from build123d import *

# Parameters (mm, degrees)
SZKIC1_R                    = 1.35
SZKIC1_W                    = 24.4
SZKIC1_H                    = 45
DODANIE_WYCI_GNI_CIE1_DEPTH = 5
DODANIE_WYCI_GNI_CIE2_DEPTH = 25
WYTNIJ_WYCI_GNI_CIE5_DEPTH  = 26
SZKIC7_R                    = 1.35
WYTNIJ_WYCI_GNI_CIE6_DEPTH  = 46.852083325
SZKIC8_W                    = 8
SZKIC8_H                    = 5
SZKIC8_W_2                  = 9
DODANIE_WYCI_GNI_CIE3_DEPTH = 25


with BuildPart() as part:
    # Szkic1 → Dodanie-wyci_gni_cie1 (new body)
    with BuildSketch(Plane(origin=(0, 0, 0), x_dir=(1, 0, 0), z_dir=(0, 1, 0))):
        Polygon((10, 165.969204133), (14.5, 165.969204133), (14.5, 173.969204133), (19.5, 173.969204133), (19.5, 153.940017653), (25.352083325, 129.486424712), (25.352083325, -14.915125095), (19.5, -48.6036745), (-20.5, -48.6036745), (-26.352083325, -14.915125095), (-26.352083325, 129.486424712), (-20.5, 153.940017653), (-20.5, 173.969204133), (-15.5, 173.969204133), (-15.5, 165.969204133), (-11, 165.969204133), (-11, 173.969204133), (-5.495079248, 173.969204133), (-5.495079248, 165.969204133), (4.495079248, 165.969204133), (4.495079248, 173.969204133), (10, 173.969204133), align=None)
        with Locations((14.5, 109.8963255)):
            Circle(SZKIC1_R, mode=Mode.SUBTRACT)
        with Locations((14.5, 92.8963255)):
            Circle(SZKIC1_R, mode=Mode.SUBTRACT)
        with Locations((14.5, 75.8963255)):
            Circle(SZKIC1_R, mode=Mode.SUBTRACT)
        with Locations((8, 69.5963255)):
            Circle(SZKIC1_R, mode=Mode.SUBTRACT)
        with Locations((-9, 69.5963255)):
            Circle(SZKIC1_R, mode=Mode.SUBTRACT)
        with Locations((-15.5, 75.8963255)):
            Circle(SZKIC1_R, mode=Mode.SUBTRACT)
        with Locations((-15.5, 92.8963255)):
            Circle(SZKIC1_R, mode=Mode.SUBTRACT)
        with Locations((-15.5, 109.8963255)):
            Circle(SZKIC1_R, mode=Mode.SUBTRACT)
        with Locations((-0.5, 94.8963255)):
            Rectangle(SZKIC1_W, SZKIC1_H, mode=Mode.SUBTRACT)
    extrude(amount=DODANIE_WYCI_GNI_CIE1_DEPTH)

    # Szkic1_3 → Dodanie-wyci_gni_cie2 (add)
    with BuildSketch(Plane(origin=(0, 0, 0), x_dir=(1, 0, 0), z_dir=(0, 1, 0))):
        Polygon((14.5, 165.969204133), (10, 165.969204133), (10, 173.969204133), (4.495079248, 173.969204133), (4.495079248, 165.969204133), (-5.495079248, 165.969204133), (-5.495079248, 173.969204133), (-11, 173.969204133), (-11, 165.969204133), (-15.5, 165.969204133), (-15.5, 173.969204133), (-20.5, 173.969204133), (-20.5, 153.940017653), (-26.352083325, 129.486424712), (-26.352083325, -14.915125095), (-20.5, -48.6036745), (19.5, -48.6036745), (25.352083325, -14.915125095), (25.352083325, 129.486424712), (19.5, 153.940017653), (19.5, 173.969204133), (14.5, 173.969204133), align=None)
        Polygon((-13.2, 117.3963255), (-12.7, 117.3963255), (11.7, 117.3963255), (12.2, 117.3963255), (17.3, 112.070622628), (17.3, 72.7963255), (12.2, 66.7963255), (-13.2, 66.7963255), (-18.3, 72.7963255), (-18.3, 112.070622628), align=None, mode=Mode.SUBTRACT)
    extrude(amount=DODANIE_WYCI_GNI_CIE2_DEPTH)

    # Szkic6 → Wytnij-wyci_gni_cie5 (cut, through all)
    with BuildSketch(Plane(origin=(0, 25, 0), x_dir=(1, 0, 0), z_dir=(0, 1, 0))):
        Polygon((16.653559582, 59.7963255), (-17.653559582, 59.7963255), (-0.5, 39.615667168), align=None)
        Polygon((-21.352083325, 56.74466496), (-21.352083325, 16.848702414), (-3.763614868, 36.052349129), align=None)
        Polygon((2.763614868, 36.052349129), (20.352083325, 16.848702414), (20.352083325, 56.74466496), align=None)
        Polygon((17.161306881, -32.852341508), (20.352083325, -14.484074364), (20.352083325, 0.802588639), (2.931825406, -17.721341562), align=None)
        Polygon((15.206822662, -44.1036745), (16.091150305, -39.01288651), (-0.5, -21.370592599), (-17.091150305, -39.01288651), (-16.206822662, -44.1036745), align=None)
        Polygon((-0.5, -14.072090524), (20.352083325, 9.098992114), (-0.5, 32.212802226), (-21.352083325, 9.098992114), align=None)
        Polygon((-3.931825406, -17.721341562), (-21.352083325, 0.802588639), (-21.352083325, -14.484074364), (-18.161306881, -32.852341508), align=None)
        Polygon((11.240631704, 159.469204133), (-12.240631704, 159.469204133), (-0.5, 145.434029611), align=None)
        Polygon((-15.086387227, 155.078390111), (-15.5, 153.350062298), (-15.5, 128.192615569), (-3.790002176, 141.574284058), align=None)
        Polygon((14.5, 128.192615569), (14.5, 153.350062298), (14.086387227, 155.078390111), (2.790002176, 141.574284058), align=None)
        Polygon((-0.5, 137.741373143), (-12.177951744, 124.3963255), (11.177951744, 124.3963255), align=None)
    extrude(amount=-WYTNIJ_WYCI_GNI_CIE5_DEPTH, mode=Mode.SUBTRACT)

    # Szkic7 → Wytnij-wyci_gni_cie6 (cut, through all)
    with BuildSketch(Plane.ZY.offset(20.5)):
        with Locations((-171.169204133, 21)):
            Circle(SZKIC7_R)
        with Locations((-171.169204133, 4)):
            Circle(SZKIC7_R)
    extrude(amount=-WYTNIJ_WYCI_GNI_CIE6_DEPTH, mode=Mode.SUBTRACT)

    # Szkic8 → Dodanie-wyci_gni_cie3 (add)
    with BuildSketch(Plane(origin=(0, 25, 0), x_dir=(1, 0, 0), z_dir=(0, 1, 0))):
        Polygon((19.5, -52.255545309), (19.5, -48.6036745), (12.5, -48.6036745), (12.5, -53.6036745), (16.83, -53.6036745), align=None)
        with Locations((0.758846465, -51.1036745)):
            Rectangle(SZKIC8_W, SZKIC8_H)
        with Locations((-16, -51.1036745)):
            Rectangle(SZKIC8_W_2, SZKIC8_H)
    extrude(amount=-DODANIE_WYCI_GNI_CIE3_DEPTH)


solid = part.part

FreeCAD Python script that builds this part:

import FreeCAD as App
import Part
import Sketcher
Q = App.Units.Quantity

doc = App.newDocument("Part")
body = doc.addObject("PartDesign::Body", "Body")

sketch1 = doc.addObject("Sketcher::SketchObject", "Sketch")
body.addObject(sketch1)
sketch1.AttachmentSupport = (doc.XZ_Plane, [""])
sketch1.MapMode = "FlatFace"
sketch1.addGeometry([
    Part.LineSegment(App.Vector(14.5, -166, 0), App.Vector(10, -166, 0)),
    Part.LineSegment(App.Vector(10, -166, 0), App.Vector(10, -174, 0)),
    Part.LineSegment(App.Vector(10, -174, 0), App.Vector(4.5, -174, 0)),
    Part.LineSegment(App.Vector(4.5, -174, 0), App.Vector(4.5, -166, 0)),
    Part.LineSegment(App.Vector(4.5, -166, 0), App.Vector(-5.5, -166, 0)),
    Part.LineSegment(App.Vector(-5.5, -166, 0), App.Vector(-5.5, -174, 0)),
    Part.LineSegment(App.Vector(-5.5, -174, 0), App.Vector(-11, -174, 0)),
    Part.LineSegment(App.Vector(-11, -174, 0), App.Vector(-11, -166, 0)),
    Part.LineSegment(App.Vector(-11, -166, 0), App.Vector(-15.5, -166, 0)),
    Part.LineSegment(App.Vector(-15.5, -166, 0), App.Vector(-15.5, -174, 0)),
    Part.LineSegment(App.Vector(-15.5, -174, 0), App.Vector(-20.5, -174, 0)),
    Part.LineSegment(App.Vector(-20.5, -174, 0), App.Vector(-20.5, -153.9, 0)),
    Part.LineSegment(App.Vector(-20.5, -153.9, 0), App.Vector(-26.4, -129.5, 0)),
    Part.LineSegment(App.Vector(-26.4, -129.5, 0), App.Vector(-26.4, 14.9, 0)),
    Part.LineSegment(App.Vector(-26.4, 14.9, 0), App.Vector(-20.5, 48.6, 0)),
    Part.LineSegment(App.Vector(-20.5, 48.6, 0), App.Vector(19.5, 48.6, 0)),
    Part.LineSegment(App.Vector(19.5, 48.6, 0), App.Vector(25.4, 14.9, 0)),
    Part.LineSegment(App.Vector(25.4, 14.9, 0), App.Vector(25.4, -129.5, 0)),
    Part.LineSegment(App.Vector(25.4, -129.5, 0), App.Vector(19.5, -153.9, 0)),
    Part.LineSegment(App.Vector(19.5, -153.9, 0), App.Vector(19.5, -174, 0)),
    Part.LineSegment(App.Vector(19.5, -174, 0), App.Vector(14.5, -174, 0)),
    Part.LineSegment(App.Vector(14.5, -174, 0), App.Vector(14.5, -166, 0)),
    Part.Circle(App.Vector(8, -69.6, 0), App.Vector(0, 0, 1), 1.4),
    Part.Circle(App.Vector(14.5, -75.9, 0), App.Vector(0, 0, 1), 1.4),
    Part.Circle(App.Vector(-9, -69.6, 0), App.Vector(0, 0, 1), 1.4),
    Part.Circle(App.Vector(-15.5, -75.9, 0), App.Vector(0, 0, 1), 1.4),
    Part.Circle(App.Vector(14.5, -92.9, 0), App.Vector(0, 0, 1), 1.4),
    Part.Circle(App.Vector(14.5, -109.9, 0), App.Vector(0, 0, 1), 1.4),
    Part.LineSegment(App.Vector(-12.7, -72.4, 0), App.Vector(-12.7, -117.4, 0)),
    Part.LineSegment(App.Vector(-12.7, -117.4, 0), App.Vector(11.7, -117.4, 0)),
    Part.LineSegment(App.Vector(11.7, -117.4, 0), App.Vector(11.7, -72.4, 0)),
    Part.LineSegment(App.Vector(11.7, -72.4, 0), App.Vector(-12.7, -72.4, 0)),
    Part.Circle(App.Vector(-15.5, -92.9, 0), App.Vector(0, 0, 1), 1.4),
    Part.Circle(App.Vector(-15.5, -109.9, 0), App.Vector(0, 0, 1), 1.4),
], False)
sketch1.addConstraint([
    Sketcher.Constraint("Coincident", 0, 2, 1, 1),
    Sketcher.Constraint("Coincident", 1, 2, 2, 1),
    Sketcher.Constraint("Coincident", 2, 2, 3, 1),
    Sketcher.Constraint("Coincident", 3, 2, 4, 1),
    Sketcher.Constraint("Coincident", 4, 2, 5, 1),
    Sketcher.Constraint("Coincident", 5, 2, 6, 1),
    Sketcher.Constraint("Coincident", 6, 2, 7, 1),
    Sketcher.Constraint("Coincident", 7, 2, 8, 1),
    Sketcher.Constraint("Coincident", 8, 2, 9, 1),
    Sketcher.Constraint("Coincident", 9, 2, 10, 1),
    Sketcher.Constraint("Coincident", 10, 2, 11, 1),
    Sketcher.Constraint("Coincident", 11, 2, 12, 1),
    Sketcher.Constraint("Coincident", 12, 2, 13, 1),
    Sketcher.Constraint("Coincident", 13, 2, 14, 1),
    Sketcher.Constraint("Coincident", 14, 2, 15, 1),
    Sketcher.Constraint("Coincident", 15, 2, 16, 1),
    Sketcher.Constraint("Coincident", 16, 2, 17, 1),
    Sketcher.Constraint("Coincident", 17, 2, 18, 1),
    Sketcher.Constraint("Coincident", 18, 2, 19, 1),
    Sketcher.Constraint("Coincident", 19, 2, 20, 1),
    Sketcher.Constraint("Coincident", 20, 2, 21, 1),
    Sketcher.Constraint("Coincident", 21, 2, 0, 1),
    Sketcher.Constraint("Coincident", 28, 2, 29, 1),
    Sketcher.Constraint("Coincident", 29, 2, 30, 1),
    Sketcher.Constraint("Coincident", 30, 2, 31, 1),
    Sketcher.Constraint("Coincident", 31, 2, 28, 1),
    Sketcher.Constraint("Horizontal", 0),
    Sketcher.Constraint("Vertical", 1),
    Sketcher.Constraint("Horizontal", 2),
    Sketcher.Constraint("Vertical", 3),
    Sketcher.Constraint("Horizontal", 4),
    Sketcher.Constraint("Vertical", 5),
    Sketcher.Constraint("Horizontal", 6),
    Sketcher.Constraint("Vertical", 7),
    Sketcher.Constraint("Horizontal", 8),
    Sketcher.Constraint("Vertical", 9),
    Sketcher.Constraint("Horizontal", 10),
    Sketcher.Constraint("Vertical", 11),
    Sketcher.Constraint("Vertical", 13),
    Sketcher.Constraint("Horizontal", 15),
    Sketcher.Constraint("Vertical", 17),
    Sketcher.Constraint("Vertical", 19),
    Sketcher.Constraint("Horizontal", 20),
    Sketcher.Constraint("Vertical", 21),
    Sketcher.Constraint("Vertical", 28),
    Sketcher.Constraint("Horizontal", 29),
    Sketcher.Constraint("Vertical", 30),
    Sketcher.Constraint("Horizontal", 31),
    Sketcher.Constraint("Equal", 22, 23),
    Sketcher.Constraint("Equal", 23, 24),
    Sketcher.Constraint("Equal", 24, 25),
    Sketcher.Constraint("Equal", 25, 26),
    Sketcher.Constraint("Equal", 26, 27),
    Sketcher.Constraint("Equal", 27, 32),
    Sketcher.Constraint("Equal", 32, 33),
    Sketcher.Constraint("Horizontal", 22, 3, 24, 3),
    Sketcher.Constraint("Horizontal", 23, 3, 25, 3),
    Sketcher.Constraint("Horizontal", 26, 3, 32, 3),
    Sketcher.Constraint("Horizontal", 27, 3, 33, 3),
    Sketcher.Constraint("Horizontal", 0, 2, 3, 2),
    Sketcher.Constraint("Horizontal", 2, 2, 5, 2),
    Sketcher.Constraint("Horizontal", 4, 2, 7, 2),
    Sketcher.Constraint("Horizontal", 6, 2, 9, 2),
    Sketcher.Constraint("Horizontal", 13, 2, 16, 2),
    Sketcher.Constraint("Horizontal", 12, 2, 17, 2),
    Sketcher.Constraint("Horizontal", 11, 2, 18, 2),
    Sketcher.Constraint("Horizontal", 10, 2, 19, 2),
    Sketcher.Constraint("Vertical", 23, 3, 26, 3),
    Sketcher.Constraint("Vertical", 26, 3, 27, 3),
    Sketcher.Constraint("Vertical", 25, 3, 32, 3),
    Sketcher.Constraint("Vertical", 32, 3, 33, 3),
    Sketcher.Constraint("Vertical", 33, 3, 8, 2),
    Sketcher.Constraint("Vertical", 11, 2, 14, 2),
    Sketcher.Constraint("Vertical", 15, 2, 18, 2),
    Sketcher.Constraint("Vertical", 27, 3, 20, 2),
    Sketcher.Constraint("Equal", 2, 6),
    Sketcher.Constraint("Equal", 0, 8),
    Sketcher.Constraint("Equal", 10, 20),
    Sketcher.Constraint("Equal", 14, 16),
    Sketcher.Constraint("Diameter", 22, 2.7),
    Sketcher.Constraint("DistanceX", 10, 2, 10, 1, 5.0),
    Sketcher.Constraint("DistanceX", 15, 1, 15, 2, 40.0),
    Sketcher.Constraint("DistanceY", 1, 2, 1, 1, 8.0),
    Sketcher.Constraint("DistanceY", 28, 2, 28, 1, 45.0),
    Sketcher.Constraint("DistanceX", 0, 2, 0, 1, 4.5),
    Sketcher.Constraint("DistanceX", 29, 1, 29, 2, 24.4),
    Sketcher.Constraint("DistanceX", -1, 1, 22, 3, 8.0),
    Sketcher.Constraint("DistanceX", 24, 3, -1, 1, 9.0),
    Sketcher.Constraint("DistanceX", -1, 1, 0, 2, 10.0),
    Sketcher.Constraint("DistanceY", 26, 3, 23, 3, 17.0),
    Sketcher.Constraint("DistanceY", 27, 3, 26, 3, 17.0),
    Sketcher.Constraint("DistanceX", 28, 2, -1, 1, 12.7),
    Sketcher.Constraint("DistanceY", 23, 3, 22, 3, 6.3),
    Sketcher.Constraint("DistanceY", 24, 3, 14, 2, 118.2),
    Sketcher.Constraint("DistanceY", 28, 2, 33, 3, 7.5),
    Sketcher.Constraint("DistanceX", 2, 2, 2, 1, 5.504921),
    Sketcher.Constraint("DistanceY", 13, 1, 13, 2, 144.40155),
    Sketcher.Constraint("DistanceY", 12, 2, 33, 3, 19.590099),
    Sketcher.Constraint("Distance", 14, 34.193058),
    Sketcher.Constraint("DistanceY", 11, 1, 11, 2, 20.029186),
    Sketcher.Constraint("DistanceY", 0, 2, 27, 3, 56.072879),
    Sketcher.Constraint("DistanceY", 22, 3, -1, 1, 69.596326),
])
pad1 = doc.addObject("PartDesign::Pad", "Pad")
body.addObject(pad1)
pad1.Profile = sketch1
pad1.Length = 5
pad1.Reversed = True

sketch2 = doc.addObject("Sketcher::SketchObject", "Sketch001")
body.addObject(sketch2)
sketch2.AttachmentSupport = (doc.XZ_Plane, [""])
sketch2.MapMode = "FlatFace"
sketch2.addGeometry([
    Part.LineSegment(App.Vector(14.5, -166, 0), App.Vector(10, -166, 0)),
    Part.LineSegment(App.Vector(10, -166, 0), App.Vector(10, -174, 0)),
    Part.LineSegment(App.Vector(10, -174, 0), App.Vector(4.5, -174, 0)),
    Part.LineSegment(App.Vector(4.5, -174, 0), App.Vector(4.5, -166, 0)),
    Part.LineSegment(App.Vector(4.5, -166, 0), App.Vector(-5.5, -166, 0)),
    Part.LineSegment(App.Vector(-5.5, -166, 0), App.Vector(-5.5, -174, 0)),
    Part.LineSegment(App.Vector(-5.5, -174, 0), App.Vector(-11, -174, 0)),
    Part.LineSegment(App.Vector(-11, -174, 0), App.Vector(-11, -166, 0)),
    Part.LineSegment(App.Vector(-11, -166, 0), App.Vector(-15.5, -166, 0)),
    Part.LineSegment(App.Vector(-15.5, -166, 0), App.Vector(-15.5, -174, 0)),
    Part.LineSegment(App.Vector(-15.5, -174, 0), App.Vector(-20.5, -174, 0)),
    Part.LineSegment(App.Vector(-20.5, -174, 0), App.Vector(-20.5, -153.9, 0)),
    Part.LineSegment(App.Vector(-20.5, -153.9, 0), App.Vector(-26.4, -129.5, 0)),
    Part.LineSegment(App.Vector(-26.4, -129.5, 0), App.Vector(-26.4, 14.9, 0)),
    Part.LineSegment(App.Vector(-26.4, 14.9, 0), App.Vector(-20.5, 48.6, 0)),
    Part.LineSegment(App.Vector(-20.5, 48.6, 0), App.Vector(19.5, 48.6, 0)),
    Part.LineSegment(App.Vector(19.5, 48.6, 0), App.Vector(25.4, 14.9, 0)),
    Part.LineSegment(App.Vector(25.4, 14.9, 0), App.Vector(25.4, -129.5, 0)),
    Part.LineSegment(App.Vector(25.4, -129.5, 0), App.Vector(19.5, -153.9, 0)),
    Part.LineSegment(App.Vector(19.5, -153.9, 0), App.Vector(19.5, -174, 0)),
    Part.LineSegment(App.Vector(19.5, -174, 0), App.Vector(14.5, -174, 0)),
    Part.LineSegment(App.Vector(14.5, -174, 0), App.Vector(14.5, -166, 0)),
    Part.LineSegment(App.Vector(-18.3, -112.1, 0), App.Vector(-13.2, -117.4, 0)),
    Part.LineSegment(App.Vector(-13.2, -117.4, 0), App.Vector(12.2, -117.4, 0)),
    Part.LineSegment(App.Vector(12.2, -117.4, 0), App.Vector(17.3, -112.1, 0)),
    Part.LineSegment(App.Vector(17.3, -112.1, 0), App.Vector(17.3, -72.8, 0)),
    Part.LineSegment(App.Vector(17.3, -72.8, 0), App.Vector(12.2, -66.8, 0)),
    Part.LineSegment(App.Vector(12.2, -66.8, 0), App.Vector(-13.2, -66.8, 0)),
    Part.LineSegment(App.Vector(-13.2, -66.8, 0), App.Vector(-18.3, -72.8, 0)),
    Part.LineSegment(App.Vector(-18.3, -72.8, 0), App.Vector(-18.3, -112.1, 0)),
], False)
sketch2.addConstraint([
    Sketcher.Constraint("Coincident", 0, 2, 1, 1),
    Sketcher.Constraint("Coincident", 1, 2, 2, 1),
    Sketcher.Constraint("Coincident", 2, 2, 3, 1),
    Sketcher.Constraint("Coincident", 3, 2, 4, 1),
    Sketcher.Constraint("Coincident", 4, 2, 5, 1),
    Sketcher.Constraint("Coincident", 5, 2, 6, 1),
    Sketcher.Constraint("Coincident", 6, 2, 7, 1),
    Sketcher.Constraint("Coincident", 7, 2, 8, 1),
    Sketcher.Constraint("Coincident", 8, 2, 9, 1),
    Sketcher.Constraint("Coincident", 9, 2, 10, 1),
    Sketcher.Constraint("Coincident", 10, 2, 11, 1),
    Sketcher.Constraint("Coincident", 11, 2, 12, 1),
    Sketcher.Constraint("Coincident", 12, 2, 13, 1),
    Sketcher.Constraint("Coincident", 13, 2, 14, 1),
    Sketcher.Constraint("Coincident", 14, 2, 15, 1),
    Sketcher.Constraint("Coincident", 15, 2, 16, 1),
    Sketcher.Constraint("Coincident", 16, 2, 17, 1),
    Sketcher.Constraint("Coincident", 17, 2, 18, 1),
    Sketcher.Constraint("Coincident", 18, 2, 19, 1),
    Sketcher.Constraint("Coincident", 19, 2, 20, 1),
    Sketcher.Constraint("Coincident", 20, 2, 21, 1),
    Sketcher.Constraint("Coincident", 21, 2, 0, 1),
    Sketcher.Constraint("Coincident", 22, 2, 23, 1),
    Sketcher.Constraint("Coincident", 23, 2, 24, 1),
    Sketcher.Constraint("Coincident", 24, 2, 25, 1),
    Sketcher.Constraint("Coincident", 25, 2, 26, 1),
    Sketcher.Constraint("Coincident", 26, 2, 27, 1),
    Sketcher.Constraint("Coincident", 27, 2, 28, 1),
    Sketcher.Constraint("Coincident", 28, 2, 29, 1),
    Sketcher.Constraint("Coincident", 29, 2, 22, 1),
    Sketcher.Constraint("Horizontal", 0),
    Sketcher.Constraint("Vertical", 1),
    Sketcher.Constraint("Horizontal", 2),
    Sketcher.Constraint("Vertical", 3),
    Sketcher.Constraint("Horizontal", 4),
    Sketcher.Constraint("Vertical", 5),
    Sketcher.Constraint("Horizontal", 6),
    Sketcher.Constraint("Vertical", 7),
    Sketcher.Constraint("Horizontal", 8),
    Sketcher.Constraint("Vertical", 9),
    Sketcher.Constraint("Horizontal", 10),
    Sketcher.Constraint("Vertical", 11),
    Sketcher.Constraint("Vertical", 13),
    Sketcher.Constraint("Horizontal", 15),
    Sketcher.Constraint("Vertical", 17),
    Sketcher.Constraint("Vertical", 19),
    Sketcher.Constraint("Horizontal", 20),
    Sketcher.Constraint("Vertical", 21),
    Sketcher.Constraint("Horizontal", 23),
    Sketcher.Constraint("Vertical", 25),
    Sketcher.Constraint("Horizontal", 27),
    Sketcher.Constraint("Vertical", 29),
    Sketcher.Constraint("Horizontal", 0, 2, 3, 2),
    Sketcher.Constraint("Horizontal", 2, 2, 5, 2),
    Sketcher.Constraint("Horizontal", 4, 2, 7, 2),
    Sketcher.Constraint("Horizontal", 6, 2, 9, 2),
    Sketcher.Constraint("Horizontal", 13, 2, 16, 2),
    Sketcher.Constraint("Horizontal", 12, 2, 17, 2),
    Sketcher.Constraint("Horizontal", 11, 2, 18, 2),
    Sketcher.Constraint("Horizontal", 10, 2, 19, 2),
    Sketcher.Constraint("Horizontal", 25, 2, 28, 2),
    Sketcher.Constraint("Horizontal", 24, 2, 29, 2),
    Sketcher.Constraint("Vertical", 11, 2, 14, 2),
    Sketcher.Constraint("Vertical", 15, 2, 18, 2),
    Sketcher.Constraint("Vertical", 23, 2, 26, 2),
    Sketcher.Constraint("Vertical", 22, 2, 27, 2),
    Sketcher.Constraint("Equal", 2, 6),
    Sketcher.Constraint("Equal", 0, 8),
    Sketcher.Constraint("Equal", 10, 20),
    Sketcher.Constraint("Equal", 14, 16),
    Sketcher.Constraint("Equal", 22, 24),
    Sketcher.Constraint("DistanceX", 10, 2, 10, 1, 5.0),
    Sketcher.Constraint("DistanceX", 15, 1, 15, 2, 40.0),
    Sketcher.Constraint("DistanceY", 1, 2, 1, 1, 8.0),
    Sketcher.Constraint("DistanceX", 0, 2, 0, 1, 4.5),
    Sketcher.Constraint("DistanceX", 23, 1, 23, 2, 25.4),
    Sketcher.Constraint("DistanceX", -1, 1, 0, 2, 10.0),
    Sketcher.Constraint("DistanceY", 25, 2, 26, 2, 6.0),
    Sketcher.Constraint("DistanceX", 22, 2, -1, 1, 13.2),
    Sketcher.Constraint("DistanceX", -1, 1, 24, 2, 17.3),
    Sketcher.Constraint("DistanceY", 23, 2, 25, 2, 44.6),
    Sketcher.Constraint("DistanceX", 2, 2, 2, 1, 5.504921),
    Sketcher.Constraint("DistanceY", 13, 1, 13, 2, 144.40155),
    Sketcher.Constraint("DistanceY", 12, 2, 14, 2, 178.090099),
    Sketcher.Constraint("DistanceY", 12, 2, 22, 2, 12.090099),
    Sketcher.Constraint("Distance", 14, 34.193058),
    Sketcher.Constraint("DistanceY", 11, 1, 11, 2, 20.029186),
    Sketcher.Constraint("DistanceY", 25, 1, 25, 2, 39.274297),
    Sketcher.Constraint("DistanceY", 8, 2, 12, 2, 36.482779),
    Sketcher.Constraint("DistanceY", 0, 2, -1, 1, 165.969204),
])
pad2 = doc.addObject("PartDesign::Pad", "Pad001")
body.addObject(pad2)
pad2.Profile = sketch2
pad2.Length = 25
pad2.Reversed = True

sketch3 = doc.addObject("Sketcher::SketchObject", "Sketch002")
body.addObject(sketch3)
sketch3.AttachmentSupport = (doc.XZ_Plane, [""])
sketch3.MapMode = "FlatFace"
sketch3.AttachmentOffset = App.Placement(App.Vector(0, 0, -25), App.Rotation())
sketch3.addGeometry([
    Part.LineSegment(App.Vector(16.7, -59.8, 0), App.Vector(-17.7, -59.8, 0)),
    Part.LineSegment(App.Vector(-17.7, -59.8, 0), App.Vector(-0.5, -39.6, 0)),
    Part.LineSegment(App.Vector(-0.5, -39.6, 0), App.Vector(16.7, -59.8, 0)),
    Part.LineSegment(App.Vector(-21.4, -56.7, 0), App.Vector(-21.4, -16.8, 0)),
    Part.LineSegment(App.Vector(-21.4, -16.8, 0), App.Vector(-3.8, -36.1, 0)),
    Part.LineSegment(App.Vector(-3.8, -36.1, 0), App.Vector(-21.4, -56.7, 0)),
    Part.LineSegment(App.Vector(2.8, -36.1, 0), App.Vector(20.4, -16.8, 0)),
    Part.LineSegment(App.Vector(20.4, -16.8, 0), App.Vector(20.4, -56.7, 0)),
    Part.LineSegment(App.Vector(20.4, -56.7, 0), App.Vector(2.8, -36.1, 0)),
    Part.LineSegment(App.Vector(17.2, 32.9, 0), App.Vector(20.4, 14.5, 0)),
    Part.LineSegment(App.Vector(20.4, 14.5, 0), App.Vector(20.4, -0.8, 0)),
    Part.LineSegment(App.Vector(20.4, -0.8, 0), App.Vector(2.9, 17.7, 0)),
    Part.LineSegment(App.Vector(2.9, 17.7, 0), App.Vector(17.2, 32.9, 0)),
    Part.LineSegment(App.Vector(15.2, 44.1, 0), App.Vector(16.1, 39, 0)),
    Part.LineSegment(App.Vector(16.1, 39, 0), App.Vector(-0.5, 21.4, 0)),
    Part.LineSegment(App.Vector(-0.5, 21.4, 0), App.Vector(-17.1, 39, 0)),
    Part.LineSegment(App.Vector(-17.1, 39, 0), App.Vector(-16.2, 44.1, 0)),
    Part.LineSegment(App.Vector(-16.2, 44.1, 0), App.Vector(15.2, 44.1, 0)),
    Part.LineSegment(App.Vector(-0.5, 14.1, 0), App.Vector(20.4, -9.1, 0)),
    Part.LineSegment(App.Vector(20.4, -9.1, 0), App.Vector(-0.5, -32.2, 0)),
    Part.LineSegment(App.Vector(-0.5, -32.2, 0), App.Vector(-21.4, -9.1, 0)),
    Part.LineSegment(App.Vector(-21.4, -9.1, 0), App.Vector(-0.5, 14.1, 0)),
    Part.LineSegment(App.Vector(-3.9, 17.7, 0), App.Vector(-21.4, -0.8, 0)),
    Part.LineSegment(App.Vector(-21.4, -0.8, 0), App.Vector(-21.4, 14.5, 0)),
    Part.LineSegment(App.Vector(-21.4, 14.5, 0), App.Vector(-18.2, 32.9, 0)),
    Part.LineSegment(App.Vector(-18.2, 32.9, 0), App.Vector(-3.9, 17.7, 0)),
    Part.LineSegment(App.Vector(11.2, -159.5, 0), App.Vector(-12.2, -159.5, 0)),
    Part.LineSegment(App.Vector(-12.2, -159.5, 0), App.Vector(-0.5, -145.4, 0)),
    Part.LineSegment(App.Vector(-0.5, -145.4, 0), App.Vector(11.2, -159.5, 0)),
    Part.LineSegment(App.Vector(-15.1, -155.1, 0), App.Vector(-15.5, -153.4, 0)),
    Part.LineSegment(App.Vector(-15.5, -153.4, 0), App.Vector(-15.5, -128.2, 0)),
    Part.LineSegment(App.Vector(-15.5, -128.2, 0), App.Vector(-3.8, -141.6, 0)),
    Part.LineSegment(App.Vector(-3.8, -141.6, 0), App.Vector(-15.1, -155.1, 0)),
    Part.LineSegment(App.Vector(14.5, -128.2, 0), App.Vector(14.5, -153.4, 0)),
    Part.LineSegment(App.Vector(14.5, -153.4, 0), App.Vector(14.1, -155.1, 0)),
    Part.LineSegment(App.Vector(14.1, -155.1, 0), App.Vector(2.8, -141.6, 0)),
    Part.LineSegment(App.Vector(2.8, -141.6, 0), App.Vector(14.5, -128.2, 0)),
    Part.LineSegment(App.Vector(-0.5, -137.7, 0), App.Vector(-12.2, -124.4, 0)),
    Part.LineSegment(App.Vector(-12.2, -124.4, 0), App.Vector(11.2, -124.4, 0)),
    Part.LineSegment(App.Vector(11.2, -124.4, 0), App.Vector(-0.5, -137.7, 0)),
], False)
sketch3.addConstraint([
    Sketcher.Constraint("Coincident", 0, 2, 1, 1),
    Sketcher.Constraint("Coincident", 1, 2, 2, 1),
    Sketcher.Constraint("Coincident", 2, 2, 0, 1),
    Sketcher.Constraint("Coincident", 3, 2, 4, 1),
    Sketcher.Constraint("Coincident", 4, 2, 5, 1),
    Sketcher.Constraint("Coincident", 5, 2, 3, 1),
    Sketcher.Constraint("Coincident", 6, 2, 7, 1),
    Sketcher.Constraint("Coincident", 7, 2, 8, 1),
    Sketcher.Constraint("Coincident", 8, 2, 6, 1),
    Sketcher.Constraint("Coincident", 9, 2, 10, 1),
    Sketcher.Constraint("Coincident", 10, 2, 11, 1),
    Sketcher.Constraint("Coincident", 11, 2, 12, 1),
    Sketcher.Constraint("Coincident", 12, 2, 9, 1),
    Sketcher.Constraint("Coincident", 13, 2, 14, 1),
    Sketcher.Constraint("Coincident", 14, 2, 15, 1),
    Sketcher.Constraint("Coincident", 15, 2, 16, 1),
    Sketcher.Constraint("Coincident", 16, 2, 17, 1),
    Sketcher.Constraint("Coincident", 17, 2, 13, 1),
    Sketcher.Constraint("Coincident", 18, 2, 19, 1),
    Sketcher.Constraint("Coincident", 19, 2, 20, 1),
    Sketcher.Constraint("Coincident", 20, 2, 21, 1),
    Sketcher.Constraint("Coincident", 21, 2, 18, 1),
    Sketcher.Constraint("Coincident", 22, 2, 23, 1),
    Sketcher.Constraint("Coincident", 23, 2, 24, 1),
    Sketcher.Constraint("Coincident", 24, 2, 25, 1),
    Sketcher.Constraint("Coincident", 25, 2, 22, 1),
    Sketcher.Constraint("Coincident", 26, 2, 27, 1),
    Sketcher.Constraint("Coincident", 27, 2, 28, 1),
    Sketcher.Constraint("Coincident", 28, 2, 26, 1),
    Sketcher.Constraint("Coincident", 29, 2, 30, 1),
    Sketcher.Constraint("Coincident", 30, 2, 31, 1),
    Sketcher.Constraint("Coincident", 31, 2, 32, 1),
    Sketcher.Constraint("Coincident", 32, 2, 29, 1),
    Sketcher.Constraint("Coincident", 33, 2, 34, 1),
    Sketcher.Constraint("Coincident", 34, 2, 35, 1),
    Sketcher.Constraint("Coincident", 35, 2, 36, 1),
    Sketcher.Constraint("Coincident", 36, 2, 33, 1),
    Sketcher.Constraint("Coincident", 37, 2, 38, 1),
    Sketcher.Constraint("Coincident", 38, 2, 39, 1),
    Sketcher.Constraint("Coincident", 39, 2, 37, 1),
    Sketcher.Constraint("Horizontal", 0),
    Sketcher.Constraint("Vertical", 3),
    Sketcher.Constraint("Vertical", 7),
    Sketcher.Constraint("Vertical", 10),
    Sketcher.Constraint("Horizontal", 17),
    Sketcher.Constraint("Vertical", 23),
    Sketcher.Constraint("Horizontal", 26),
    Sketcher.Constraint("Vertical", 30),
    Sketcher.Constraint("Vertical", 33),
    Sketcher.Constraint("Horizontal", 38),
    Sketcher.Constraint("Parallel", 1, 5),
    Sketcher.Constraint("Parallel", 2, 8),
    Sketcher.Constraint("Parallel", 9, 13),
    Sketcher.Constraint("Parallel", 12, 14),
    Sketcher.Constraint("Parallel", 11, 15),
    Sketcher.Constraint("Parallel", 14, 22),
    Sketcher.Constraint("Parallel", 16, 24),
    Sketcher.Constraint("Parallel", 15, 25),
    Sketcher.Constraint("Parallel", 27, 32),
    Sketcher.Constraint("Parallel", 28, 35),
    Sketcher.Constraint("Parallel", 31, 37),
    Sketcher.Constraint("Parallel", 36, 39),
    Sketcher.Constraint("Horizontal", 3, 2, 6, 2),
    Sketcher.Constraint("Horizontal", 5, 2, 7, 2),
    Sketcher.Constraint("Horizontal", 4, 2, 8, 2),
    Sketcher.Constraint("Horizontal", 13, 2, 15, 2),
    Sketcher.Constraint("Horizontal", 18, 2, 20, 2),
    Sketcher.Constraint("Horizontal", 10, 2, 22, 2),
    Sketcher.Constraint("Horizontal", 9, 2, 23, 2),
    Sketcher.Constraint("Horizontal", 12, 2, 24, 2),
    Sketcher.Constraint("Horizontal", 11, 2, 25, 2),
    Sketcher.Constraint("Horizontal", 29, 2, 33, 2),
    Sketcher.Constraint("Horizontal", 32, 2, 34, 2),
    Sketcher.Constraint("Horizontal", 31, 2, 35, 2),
    Sketcher.Constraint("Horizontal", 30, 2, 36, 2),
    Sketcher.Constraint("Vertical", 7, 2, 9, 2),
    Sketcher.Constraint("Vertical", 1, 2, 14, 2),
    Sketcher.Constraint("Vertical", 10, 2, 18, 2),
    Sketcher.Constraint("Vertical", 14, 2, 19, 2),
    Sketcher.Constraint("Vertical", 5, 2, 20, 2),
    Sketcher.Constraint("Vertical", 19, 2, 21, 2),
    Sketcher.Constraint("Vertical", 20, 2, 22, 2),
    Sketcher.Constraint("Vertical", 21, 2, 27, 2),
    Sketcher.Constraint("Vertical", 27, 2, 39, 2),
    Sketcher.Constraint("Equal", 1, 2),
    Sketcher.Constraint("Equal", 14, 15),
    Sketcher.Constraint("Equal", 19, 20),
    Sketcher.Constraint("Equal", 27, 28),
    Sketcher.Constraint("Equal", 29, 34),
    Sketcher.Constraint("DistanceX", 29, 2, 27, 2, 15.0),
    Sketcher.Constraint("DistanceX", 27, 2, 33, 2, 15.0),
    Sketcher.Constraint("DistanceX", 1, 2, -1, 1, 0.5),
    Sketcher.Constraint("DistanceY", 11, 2, 12, 2, 15.131),
    Sketcher.Constraint("DistanceX", 0, 2, 0, 1, 34.307119),
    Sketcher.Constraint("DistanceX", 4, 2, 6, 2, 24.115698),
    Sketcher.Constraint("DistanceX", 15, 2, 13, 2, 33.182301),
    Sketcher.Constraint("DistanceY", 9, 2, 17, 2, 29.6196),
    Sketcher.Constraint("DistanceY", 19, 2, 3, 2, 15.3641),
    Sketcher.Constraint("Distance", 4, 26.041011),
    Sketcher.Constraint("Distance", 12, 20.77078),
    Sketcher.Constraint("Distance", 18, 31.172238),
    Sketcher.Constraint("Distance", 19, 31.12969),
    Sketcher.Constraint("Distance", 27, 18.298321),
    Sketcher.Constraint("Distance", 29, 1.77713),
    Sketcher.Constraint("Distance", 31, 17.781819),
    Sketcher.Constraint("DistanceX", 17, 1, 17, 2, 31.413645),
    Sketcher.Constraint("DistanceX", 26, 2, 26, 1, 23.481263),
    Sketcher.Constraint("DistanceX", 38, 1, 38, 2, 23.355903),
    Sketcher.Constraint("DistanceY", 3, 1, 3, 2, 39.895963),
    Sketcher.Constraint("DistanceY", 10, 2, 10, 1, 15.286663),
    Sketcher.Constraint("DistanceY", 30, 1, 30, 2, 25.157447),
    Sketcher.Constraint("DistanceY", 4, 2, -1, 1, 36.052349),
    Sketcher.Constraint("DistanceY", 10, 2, -1, 1, 0.802589),
    Sketcher.Constraint("DistanceY", -1, 1, 11, 2, 17.721342),
    Sketcher.Constraint("DistanceY", -1, 1, 21, 2, 14.072091),
    Sketcher.Constraint("DistanceY", 27, 2, -1, 1, 145.43403),
    Sketcher.Constraint("DistanceY", 32, 2, -1, 1, 155.07839),
    Sketcher.Constraint("DistanceY", 1, 2, 4, 2, 3.563318),
    Sketcher.Constraint("DistanceY", 26, 2, 29, 2, 6.119142),
    Sketcher.Constraint("DistanceY", 30, 2, 37, 2, 3.79629),
])
pocket1 = doc.addObject("PartDesign::Pocket", "Pocket")
body.addObject(pocket1)
pocket1.Profile = sketch3
pocket1.Type = "ThroughAll"
pocket1.Reversed = True

sketch4 = doc.addObject("Sketcher::SketchObject", "Sketch003")
body.addObject(sketch4)
sketch4.AttachmentSupport = (doc.YZ_Plane, [""])
sketch4.MapMode = "FlatFace"
sketch4.AttachmentOffset = App.Placement(App.Vector(0, 0, -20.5), App.Rotation())
sketch4.addGeometry([
    Part.Circle(App.Vector(21, -171.2, 0), App.Vector(0, 0, 1), 1.4),
    Part.Circle(App.Vector(4, -171.2, 0), App.Vector(0, 0, 1), 1.4),
], False)
sketch4.addConstraint([
    Sketcher.Constraint("Equal", 0, 1),
    Sketcher.Constraint("Horizontal", 0, 3, 1, 3),
    Sketcher.Constraint("Diameter", 0, 2.7),
    Sketcher.Constraint("DistanceX", -1, 1, 0, 3, 21.0),
    Sketcher.Constraint("DistanceX", -1, 1, 1, 3, 4.0),
    Sketcher.Constraint("DistanceY", 0, 3, -1, 1, 171.169204),
])
pocket2 = doc.addObject("PartDesign::Pocket", "Pocket001")
body.addObject(pocket2)
pocket2.Profile = sketch4
pocket2.Type = "ThroughAll"
pocket2.Reversed = True

sketch5 = doc.addObject("Sketcher::SketchObject", "Sketch004")
body.addObject(sketch5)
sketch5.AttachmentSupport = (doc.XZ_Plane, [""])
sketch5.MapMode = "FlatFace"
sketch5.AttachmentOffset = App.Placement(App.Vector(0, 0, -25), App.Rotation())
sketch5.addGeometry([
    Part.LineSegment(App.Vector(19.5, 52.3, 0), App.Vector(19.5, 48.6, 0)),
    Part.LineSegment(App.Vector(19.5, 48.6, 0), App.Vector(12.5, 48.6, 0)),
    Part.LineSegment(App.Vector(12.5, 48.6, 0), App.Vector(12.5, 53.6, 0)),
    Part.LineSegment(App.Vector(12.5, 53.6, 0), App.Vector(16.8, 53.6, 0)),
    Part.LineSegment(App.Vector(16.8, 53.6, 0), App.Vector(19.5, 52.3, 0)),
    Part.LineSegment(App.Vector(-3.2, 48.6, 0), App.Vector(-3.2, 53.6, 0)),
    Part.LineSegment(App.Vector(-3.2, 53.6, 0), App.Vector(4.8, 53.6, 0)),
    Part.LineSegment(App.Vector(4.8, 53.6, 0), App.Vector(4.8, 48.6, 0)),
    Part.LineSegment(App.Vector(4.8, 48.6, 0), App.Vector(-3.2, 48.6, 0)),
    Part.LineSegment(App.Vector(-20.5, 48.6, 0), App.Vector(-20.5, 53.6, 0)),
    Part.LineSegment(App.Vector(-20.5, 53.6, 0), App.Vector(-11.5, 53.6, 0)),
    Part.LineSegment(App.Vector(-11.5, 53.6, 0), App.Vector(-11.5, 48.6, 0)),
    Part.LineSegment(App.Vector(-11.5, 48.6, 0), App.Vector(-20.5, 48.6, 0)),
], False)
sketch5.addConstraint([
    Sketcher.Constraint("Coincident", 0, 2, 1, 1),
    Sketcher.Constraint("Coincident", 1, 2, 2, 1),
    Sketcher.Constraint("Coincident", 2, 2, 3, 1),
    Sketcher.Constraint("Coincident", 3, 2, 4, 1),
    Sketcher.Constraint("Coincident", 4, 2, 0, 1),
    Sketcher.Constraint("Coincident", 5, 2, 6, 1),
    Sketcher.Constraint("Coincident", 6, 2, 7, 1),
    Sketcher.Constraint("Coincident", 7, 2, 8, 1),
    Sketcher.Constraint("Coincident", 8, 2, 5, 1),
    Sketcher.Constraint("Coincident", 9, 2, 10, 1),
    Sketcher.Constraint("Coincident", 10, 2, 11, 1),
    Sketcher.Constraint("Coincident", 11, 2, 12, 1),
    Sketcher.Constraint("Coincident", 12, 2, 9, 1),
    Sketcher.Constraint("Vertical", 0),
    Sketcher.Constraint("Horizontal", 1),
    Sketcher.Constraint("Vertical", 2),
    Sketcher.Constraint("Horizontal", 3),
    Sketcher.Constraint("Vertical", 5),
    Sketcher.Constraint("Horizontal", 6),
    Sketcher.Constraint("Vertical", 7),
    Sketcher.Constraint("Horizontal", 8),
    Sketcher.Constraint("Vertical", 9),
    Sketcher.Constraint("Horizontal", 10),
    Sketcher.Constraint("Vertical", 11),
    Sketcher.Constraint("Horizontal", 12),
    Sketcher.Constraint("Horizontal", 3, 2, 5, 2),
    Sketcher.Constraint("Horizontal", 1, 2, 7, 2),
    Sketcher.Constraint("Horizontal", 6, 2, 9, 2),
    Sketcher.Constraint("Horizontal", 8, 2, 11, 2),
    Sketcher.Constraint("DistanceX", 1, 2, 1, 1, 7.0),
    Sketcher.Constraint("DistanceX", 6, 1, 6, 2, 8.0),
    Sketcher.Constraint("DistanceX", 10, 1, 10, 2, 9.0),
    Sketcher.Constraint("DistanceY", 2, 1, 2, 2, 5.0),
    Sketcher.Constraint("DistanceX", 9, 2, 2, 2, 33.0),
    Sketcher.Constraint("DistanceX", 3, 1, 3, 2, 4.33),
    Sketcher.Constraint("DistanceX", -1, 1, 0, 2, 19.5),
    Sketcher.Constraint("Angle", 4, Q("-26.79 deg")),
    Sketcher.Constraint("DistanceY", -1, 1, 0, 2, 48.603674),
    Sketcher.Constraint("DistanceX", 5, 2, -1, 1, 3.241154),
])
pad3 = doc.addObject("PartDesign::Pad", "Pad002")
body.addObject(pad3)
pad3.Profile = sketch5
pad3.Length = 25

doc.recompute()
